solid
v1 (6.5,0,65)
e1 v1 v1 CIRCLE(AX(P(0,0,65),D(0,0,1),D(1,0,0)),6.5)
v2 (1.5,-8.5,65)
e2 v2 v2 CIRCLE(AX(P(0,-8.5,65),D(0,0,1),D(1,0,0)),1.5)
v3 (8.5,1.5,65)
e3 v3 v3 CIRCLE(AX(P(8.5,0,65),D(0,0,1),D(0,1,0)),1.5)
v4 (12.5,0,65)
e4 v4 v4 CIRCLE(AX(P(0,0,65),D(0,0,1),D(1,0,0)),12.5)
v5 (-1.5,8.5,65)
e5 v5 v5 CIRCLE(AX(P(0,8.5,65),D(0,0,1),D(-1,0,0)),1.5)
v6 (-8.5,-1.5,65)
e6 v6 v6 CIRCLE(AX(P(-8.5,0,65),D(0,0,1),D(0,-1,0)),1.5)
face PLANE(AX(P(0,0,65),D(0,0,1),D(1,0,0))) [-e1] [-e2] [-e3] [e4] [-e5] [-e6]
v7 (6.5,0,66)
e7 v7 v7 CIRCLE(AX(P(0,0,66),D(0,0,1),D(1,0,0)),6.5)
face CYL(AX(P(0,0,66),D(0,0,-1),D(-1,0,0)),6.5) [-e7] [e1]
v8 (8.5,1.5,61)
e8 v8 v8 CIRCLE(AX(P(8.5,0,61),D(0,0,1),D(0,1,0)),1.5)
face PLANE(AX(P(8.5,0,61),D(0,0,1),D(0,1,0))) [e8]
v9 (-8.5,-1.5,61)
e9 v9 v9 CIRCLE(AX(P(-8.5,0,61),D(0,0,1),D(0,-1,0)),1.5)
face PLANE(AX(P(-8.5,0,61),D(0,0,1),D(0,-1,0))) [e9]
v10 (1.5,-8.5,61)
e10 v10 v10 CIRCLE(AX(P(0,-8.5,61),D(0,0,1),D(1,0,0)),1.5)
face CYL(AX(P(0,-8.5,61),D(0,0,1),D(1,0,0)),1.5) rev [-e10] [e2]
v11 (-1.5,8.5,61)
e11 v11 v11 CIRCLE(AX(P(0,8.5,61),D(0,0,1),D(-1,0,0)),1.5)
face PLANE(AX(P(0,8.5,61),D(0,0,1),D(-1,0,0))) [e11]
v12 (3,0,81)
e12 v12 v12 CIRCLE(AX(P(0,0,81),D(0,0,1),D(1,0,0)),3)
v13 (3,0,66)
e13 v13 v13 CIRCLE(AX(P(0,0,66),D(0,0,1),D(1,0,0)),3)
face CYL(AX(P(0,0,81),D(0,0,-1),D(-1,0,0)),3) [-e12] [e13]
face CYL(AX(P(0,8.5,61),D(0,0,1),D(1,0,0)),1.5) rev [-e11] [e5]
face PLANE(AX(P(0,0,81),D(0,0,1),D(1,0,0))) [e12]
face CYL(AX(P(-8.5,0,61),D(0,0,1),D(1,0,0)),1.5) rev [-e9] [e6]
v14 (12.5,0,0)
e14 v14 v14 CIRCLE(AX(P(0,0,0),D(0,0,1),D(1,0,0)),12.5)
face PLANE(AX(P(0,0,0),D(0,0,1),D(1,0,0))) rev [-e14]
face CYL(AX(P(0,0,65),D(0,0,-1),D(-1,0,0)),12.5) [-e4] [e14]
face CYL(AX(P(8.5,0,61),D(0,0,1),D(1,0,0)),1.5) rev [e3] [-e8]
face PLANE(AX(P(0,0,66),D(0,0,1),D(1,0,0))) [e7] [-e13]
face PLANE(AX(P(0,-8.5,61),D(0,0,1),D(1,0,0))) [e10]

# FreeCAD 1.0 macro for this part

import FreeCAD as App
import Part
import Sketcher
Q = App.Units.Quantity

doc = App.newDocument("Part")
params = doc.addObject("Spreadsheet::Sheet", "Params")
for row, (alias, value) in enumerate([
    ("sketch1_diameter", "25 mm"),
    ("pad1_length", "65 mm"),
    ("sketch2_diameter", "13 mm"),
    ("pad2_length", "1 mm"),
    ("sketch3_diameter", "6 mm"),
    ("pad3_length", "15 mm"),
    ("sketch4_diameter", "3 mm"),
    ("pocket1_length", "4 mm"),
], start=1):
    params.set(f"A{row}", alias)
    params.set(f"B{row}", "=" + value)
    params.setAlias(f"B{row}", alias)

body = doc.addObject("PartDesign::Body", "Body")

sketch1 = body.newObject("Sketcher::SketchObject", "Sketch")
sketch1.AttachmentSupport = (doc.getObject("XY_Plane"), [""])
sketch1.MapMode = "FlatFace"
sketch1.addGeometry(Part.Circle(App.Vector(0, 0, 0), App.Vector(0, 0, 1), 12), False)
sketch1.addConstraint([
    Sketcher.Constraint("Coincident", 0, 3, -1, 1),
    Sketcher.Constraint("Diameter", 0, Q("25 mm")),
])
sketch1.setExpression("Constraints[1]", "Params.sketch1_diameter")
pad1 = body.newObject("PartDesign::Pad", "Pad")
pad1.Profile = sketch1
pad1.setExpression("Length", "Params.pad1_length")

sketch2 = body.newObject("Sketcher::SketchObject", "Sketch001")
sketch2.AttachmentSupport = (doc.getObject("XY_Plane"), [""])
sketch2.MapMode = "FlatFace"
sketch2.AttachmentOffset = App.Placement(App.Vector(0, 0, 65), App.Rotation())
sketch2.addGeometry(Part.Circle(App.Vector(0, 0, 0), App.Vector(0, 0, 1), 6), False)
sketch2.addConstraint([
    Sketcher.Constraint("Coincident", 0, 3, -1, 1),
    Sketcher.Constraint("Diameter", 0, Q("13 mm")),
])
sketch2.setExpression("Constraints[1]", "Params.sketch2_diameter")
pad2 = body.newObject("PartDesign::Pad", "Pad001")
pad2.Profile = sketch2
pad2.setExpression("Length", "Params.pad2_length")

sketch3 = body.newObject("Sketcher::SketchObject", "Sketch002")
sketch3.AttachmentSupport = (doc.getObject("XY_Plane"), [""])
sketch3.MapMode = "FlatFace"
sketch3.AttachmentOffset = App.Placement(App.Vector(0, 0, 66), App.Rotation())
sketch3.addGeometry(Part.Circle(App.Vector(0, 0, 0), App.Vector(0, 0, 1), 3), False)
sketch3.addConstraint([
    Sketcher.Constraint("Coincident", 0, 3, -1, 1),
    Sketcher.Constraint("Diameter", 0, Q("6 mm")),
])
sketch3.setExpression("Constraints[1]", "Params.sketch3_diameter")
pad3 = body.newObject("PartDesign::Pad", "Pad002")
pad3.Profile = sketch3
pad3.setExpression("Length", "Params.pad3_length")

sketch4 = body.newObject("Sketcher::SketchObject", "Sketch003")
sketch4.AttachmentSupport = (doc.getObject("XY_Plane"), [""])
sketch4.MapMode = "FlatFace"
sketch4.AttachmentOffset = App.Placement(App.Vector(0, 0, 65), App.Rotation())
sketch4.addGeometry(Part.Circle(App.Vector(0, -8.5, 0), App.Vector(0, 0, 1), 1.5), False)
sketch4.addConstraint([
    Sketcher.Constraint("PointOnObject", 0, 3, -2),
    Sketcher.Constraint("Diameter", 0, Q("3 mm")),
    Sketcher.Constraint("DistanceY", 0, 3, -1, 1, Q("8.5 mm")),
])
sketch4.setExpression("Constraints[1]", "Params.sketch4_diameter")
pocket1 = body.newObject("PartDesign::Pocket", "Pocket")
pocket1.Profile = sketch4
pocket1.setExpression("Length", "Params.pocket1_length")
doc.recompute()

polarpattern = body.newObject("PartDesign::PolarPattern", "PolarPattern")
polarpattern.Originals = [pocket1]
polarpattern.Axis = (doc.getObject("Z_Axis"), [""])
polarpattern.Angle = 360
polarpattern.Occurrences = 4
body.Tip = polarpattern

doc.recompute()
